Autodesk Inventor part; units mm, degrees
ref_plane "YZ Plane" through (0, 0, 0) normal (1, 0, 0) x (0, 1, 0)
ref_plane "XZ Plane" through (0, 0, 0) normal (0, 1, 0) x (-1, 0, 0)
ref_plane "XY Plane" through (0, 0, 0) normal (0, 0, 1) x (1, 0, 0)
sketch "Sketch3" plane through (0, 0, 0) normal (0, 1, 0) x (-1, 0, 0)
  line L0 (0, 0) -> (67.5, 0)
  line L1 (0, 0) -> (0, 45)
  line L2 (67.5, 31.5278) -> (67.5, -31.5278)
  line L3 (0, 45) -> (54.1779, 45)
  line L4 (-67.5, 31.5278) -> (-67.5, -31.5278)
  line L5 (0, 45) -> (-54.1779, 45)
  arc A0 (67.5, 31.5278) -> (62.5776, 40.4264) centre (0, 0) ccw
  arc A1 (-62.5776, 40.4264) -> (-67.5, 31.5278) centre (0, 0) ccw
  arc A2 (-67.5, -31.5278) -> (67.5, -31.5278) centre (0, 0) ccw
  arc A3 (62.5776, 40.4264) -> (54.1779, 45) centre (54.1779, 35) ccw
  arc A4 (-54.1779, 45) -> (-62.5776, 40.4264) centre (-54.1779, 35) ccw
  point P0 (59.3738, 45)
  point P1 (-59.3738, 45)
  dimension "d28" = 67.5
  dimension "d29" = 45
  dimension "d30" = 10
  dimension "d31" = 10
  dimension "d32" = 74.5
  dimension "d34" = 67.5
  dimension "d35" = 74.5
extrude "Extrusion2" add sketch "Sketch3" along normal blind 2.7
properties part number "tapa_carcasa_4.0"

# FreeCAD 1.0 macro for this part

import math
import FreeCAD as App
import Part
import Sketcher

V = App.Vector

doc = App.newDocument("Part")
params = doc.addObject("Spreadsheet::Sheet", "Params")
for row, (alias, value) in enumerate([
    ("sketch1_radius", "10 mm"),
    ("sketch1_radius2", "10 mm"),
    ("sketch1_radius3", "74.5 mm"),
    ("pad1_length", "2.7 mm"),
], start=1):
    params.set(f"A{row}", alias)
    params.set(f"B{row}", "=" + value)
    params.setAlias(f"B{row}", alias)

body = doc.addObject("PartDesign::Body", "Body")

sketch1 = doc.addObject("Sketcher::SketchObject", "Sketch")
body.addObject(sketch1)
sketch1.AttachmentSupport = (doc.XZ_Plane, [""])
sketch1.MapMode = "FlatFace"
sketch1.addGeometry(Part.LineSegment(V(-54.1779, 45, 0), V(54.1779, 45, 0)), False)
sketch1.addGeometry(Part.ArcOfCircle(Part.Circle(V(54.1779, 35, 0), V(0, 0, 1), 10), math.radians(32.863393), math.radians(90)), False)
sketch1.addGeometry(Part.ArcOfCircle(Part.Circle(V(-0.002884, -0.001726, 0), V(0, 0, 1), 74.503358), math.radians(25.036532), math.radians(32.863192)), False)
sketch1.addGeometry(Part.LineSegment(V(67.5, 31.5278, 0), V(67.5, -31.5278, 0)), False)
sketch1.addGeometry(Part.ArcOfCircle(Part.Circle(V(0, 0, 0), V(0, 0, 1), 74.500015), math.radians(-154.963732), math.radians(-25.036268)), False)
sketch1.addGeometry(Part.LineSegment(V(-67.5, -31.5278, 0), V(-67.5, 31.5278, 0)), False)
sketch1.addGeometry(Part.ArcOfCircle(Part.Circle(V(-0.002995, 0.001525, 0), V(0, 0, 1), 74.496656), math.radians(147.136455), math.radians(154.96382)), False)
sketch1.addGeometry(Part.ArcOfCircle(Part.Circle(V(-54.1779, 35, 0), V(0, 0, 1), 10.000039), math.radians(90), math.radians(147.136607)), False)
sketch1.addConstraint(Sketcher.Constraint("Coincident", 0, 2, 1, 2))
sketch1.addConstraint(Sketcher.Constraint("Coincident", 1, 1, 2, 2))
sketch1.addConstraint(Sketcher.Constraint("Coincident", 2, 1, 3, 1))
sketch1.addConstraint(Sketcher.Constraint("Coincident", 3, 2, 4, 2))
sketch1.addConstraint(Sketcher.Constraint("Coincident", 4, 1, 5, 1))
sketch1.addConstraint(Sketcher.Constraint("Coincident", 5, 2, 6, 2))
sketch1.addConstraint(Sketcher.Constraint("Coincident", 6, 1, 7, 2))
sketch1.addConstraint(Sketcher.Constraint("Coincident", 7, 1, 0, 1))
sketch1.addConstraint(Sketcher.Constraint("Horizontal", 0))
sketch1.addConstraint(Sketcher.Constraint("Vertical", 3))
sketch1.addConstraint(Sketcher.Constraint("Vertical", 5))
sketch1.addConstraint(Sketcher.Constraint("Coincident", 4, 3, -1, 1))
sketch1.addConstraint(Sketcher.Constraint("Radius", 1, 10.0))
sketch1.addConstraint(Sketcher.Constraint("Radius", 7, 10.0))
sketch1.addConstraint(Sketcher.Constraint("Radius", 4, 74.5))
sketch1.addConstraint(Sketcher.Constraint("DistanceY", -1, 1, 0, 2, 45.0))
sketch1.addConstraint(Sketcher.Constraint("DistanceX", -1, 1, 2, 1, 67.5))
sketch1.addConstraint(Sketcher.Constraint("DistanceX", 4, 1, -1, 1, 67.5))
sketch1.addConstraint(Sketcher.Constraint("DistanceX", 6, 3, 2, 3, 0.0))
sketch1.addConstraint(Sketcher.Constraint("Radius", 2, 74.5034))
sketch1.addConstraint(Sketcher.Constraint("Radius", 6, 74.4967))
sketch1.addConstraint(Sketcher.Constraint("DistanceX", 0, 1, 0, 2, 108.3558))
sketch1.addConstraint(Sketcher.Constraint("DistanceY", 3, 2, 3, 1, 63.0556))
sketch1.addConstraint(Sketcher.Constraint("DistanceY", 5, 1, 5, 2, 63.0556))
sketch1.addConstraint(Sketcher.Constraint("DistanceX", -1, 1, 1, 3, 54.178))
sketch1.addConstraint(Sketcher.Constraint("DistanceX", -1, 1, 0, 2, 54.178))
sketch1.addConstraint(Sketcher.Constraint("DistanceY", 2, 3, 1, 1, 40.428))
sketch1.addConstraint(Sketcher.Constraint("DistanceX", 6, 1, -1, 1, 62.5776))
sketch1.setExpression("Constraints[12]", "Params.sketch1_radius")
sketch1.setExpression("Constraints[13]", "Params.sketch1_radius2")
sketch1.setExpression("Constraints[14]", "Params.sketch1_radius3")
pad1 = doc.addObject("PartDesign::Pad", "Pad")
body.addObject(pad1)
pad1.Profile = sketch1
pad1.setExpression("Length", "Params.pad1_length")
pad1.Reversed = True

doc.recompute()
